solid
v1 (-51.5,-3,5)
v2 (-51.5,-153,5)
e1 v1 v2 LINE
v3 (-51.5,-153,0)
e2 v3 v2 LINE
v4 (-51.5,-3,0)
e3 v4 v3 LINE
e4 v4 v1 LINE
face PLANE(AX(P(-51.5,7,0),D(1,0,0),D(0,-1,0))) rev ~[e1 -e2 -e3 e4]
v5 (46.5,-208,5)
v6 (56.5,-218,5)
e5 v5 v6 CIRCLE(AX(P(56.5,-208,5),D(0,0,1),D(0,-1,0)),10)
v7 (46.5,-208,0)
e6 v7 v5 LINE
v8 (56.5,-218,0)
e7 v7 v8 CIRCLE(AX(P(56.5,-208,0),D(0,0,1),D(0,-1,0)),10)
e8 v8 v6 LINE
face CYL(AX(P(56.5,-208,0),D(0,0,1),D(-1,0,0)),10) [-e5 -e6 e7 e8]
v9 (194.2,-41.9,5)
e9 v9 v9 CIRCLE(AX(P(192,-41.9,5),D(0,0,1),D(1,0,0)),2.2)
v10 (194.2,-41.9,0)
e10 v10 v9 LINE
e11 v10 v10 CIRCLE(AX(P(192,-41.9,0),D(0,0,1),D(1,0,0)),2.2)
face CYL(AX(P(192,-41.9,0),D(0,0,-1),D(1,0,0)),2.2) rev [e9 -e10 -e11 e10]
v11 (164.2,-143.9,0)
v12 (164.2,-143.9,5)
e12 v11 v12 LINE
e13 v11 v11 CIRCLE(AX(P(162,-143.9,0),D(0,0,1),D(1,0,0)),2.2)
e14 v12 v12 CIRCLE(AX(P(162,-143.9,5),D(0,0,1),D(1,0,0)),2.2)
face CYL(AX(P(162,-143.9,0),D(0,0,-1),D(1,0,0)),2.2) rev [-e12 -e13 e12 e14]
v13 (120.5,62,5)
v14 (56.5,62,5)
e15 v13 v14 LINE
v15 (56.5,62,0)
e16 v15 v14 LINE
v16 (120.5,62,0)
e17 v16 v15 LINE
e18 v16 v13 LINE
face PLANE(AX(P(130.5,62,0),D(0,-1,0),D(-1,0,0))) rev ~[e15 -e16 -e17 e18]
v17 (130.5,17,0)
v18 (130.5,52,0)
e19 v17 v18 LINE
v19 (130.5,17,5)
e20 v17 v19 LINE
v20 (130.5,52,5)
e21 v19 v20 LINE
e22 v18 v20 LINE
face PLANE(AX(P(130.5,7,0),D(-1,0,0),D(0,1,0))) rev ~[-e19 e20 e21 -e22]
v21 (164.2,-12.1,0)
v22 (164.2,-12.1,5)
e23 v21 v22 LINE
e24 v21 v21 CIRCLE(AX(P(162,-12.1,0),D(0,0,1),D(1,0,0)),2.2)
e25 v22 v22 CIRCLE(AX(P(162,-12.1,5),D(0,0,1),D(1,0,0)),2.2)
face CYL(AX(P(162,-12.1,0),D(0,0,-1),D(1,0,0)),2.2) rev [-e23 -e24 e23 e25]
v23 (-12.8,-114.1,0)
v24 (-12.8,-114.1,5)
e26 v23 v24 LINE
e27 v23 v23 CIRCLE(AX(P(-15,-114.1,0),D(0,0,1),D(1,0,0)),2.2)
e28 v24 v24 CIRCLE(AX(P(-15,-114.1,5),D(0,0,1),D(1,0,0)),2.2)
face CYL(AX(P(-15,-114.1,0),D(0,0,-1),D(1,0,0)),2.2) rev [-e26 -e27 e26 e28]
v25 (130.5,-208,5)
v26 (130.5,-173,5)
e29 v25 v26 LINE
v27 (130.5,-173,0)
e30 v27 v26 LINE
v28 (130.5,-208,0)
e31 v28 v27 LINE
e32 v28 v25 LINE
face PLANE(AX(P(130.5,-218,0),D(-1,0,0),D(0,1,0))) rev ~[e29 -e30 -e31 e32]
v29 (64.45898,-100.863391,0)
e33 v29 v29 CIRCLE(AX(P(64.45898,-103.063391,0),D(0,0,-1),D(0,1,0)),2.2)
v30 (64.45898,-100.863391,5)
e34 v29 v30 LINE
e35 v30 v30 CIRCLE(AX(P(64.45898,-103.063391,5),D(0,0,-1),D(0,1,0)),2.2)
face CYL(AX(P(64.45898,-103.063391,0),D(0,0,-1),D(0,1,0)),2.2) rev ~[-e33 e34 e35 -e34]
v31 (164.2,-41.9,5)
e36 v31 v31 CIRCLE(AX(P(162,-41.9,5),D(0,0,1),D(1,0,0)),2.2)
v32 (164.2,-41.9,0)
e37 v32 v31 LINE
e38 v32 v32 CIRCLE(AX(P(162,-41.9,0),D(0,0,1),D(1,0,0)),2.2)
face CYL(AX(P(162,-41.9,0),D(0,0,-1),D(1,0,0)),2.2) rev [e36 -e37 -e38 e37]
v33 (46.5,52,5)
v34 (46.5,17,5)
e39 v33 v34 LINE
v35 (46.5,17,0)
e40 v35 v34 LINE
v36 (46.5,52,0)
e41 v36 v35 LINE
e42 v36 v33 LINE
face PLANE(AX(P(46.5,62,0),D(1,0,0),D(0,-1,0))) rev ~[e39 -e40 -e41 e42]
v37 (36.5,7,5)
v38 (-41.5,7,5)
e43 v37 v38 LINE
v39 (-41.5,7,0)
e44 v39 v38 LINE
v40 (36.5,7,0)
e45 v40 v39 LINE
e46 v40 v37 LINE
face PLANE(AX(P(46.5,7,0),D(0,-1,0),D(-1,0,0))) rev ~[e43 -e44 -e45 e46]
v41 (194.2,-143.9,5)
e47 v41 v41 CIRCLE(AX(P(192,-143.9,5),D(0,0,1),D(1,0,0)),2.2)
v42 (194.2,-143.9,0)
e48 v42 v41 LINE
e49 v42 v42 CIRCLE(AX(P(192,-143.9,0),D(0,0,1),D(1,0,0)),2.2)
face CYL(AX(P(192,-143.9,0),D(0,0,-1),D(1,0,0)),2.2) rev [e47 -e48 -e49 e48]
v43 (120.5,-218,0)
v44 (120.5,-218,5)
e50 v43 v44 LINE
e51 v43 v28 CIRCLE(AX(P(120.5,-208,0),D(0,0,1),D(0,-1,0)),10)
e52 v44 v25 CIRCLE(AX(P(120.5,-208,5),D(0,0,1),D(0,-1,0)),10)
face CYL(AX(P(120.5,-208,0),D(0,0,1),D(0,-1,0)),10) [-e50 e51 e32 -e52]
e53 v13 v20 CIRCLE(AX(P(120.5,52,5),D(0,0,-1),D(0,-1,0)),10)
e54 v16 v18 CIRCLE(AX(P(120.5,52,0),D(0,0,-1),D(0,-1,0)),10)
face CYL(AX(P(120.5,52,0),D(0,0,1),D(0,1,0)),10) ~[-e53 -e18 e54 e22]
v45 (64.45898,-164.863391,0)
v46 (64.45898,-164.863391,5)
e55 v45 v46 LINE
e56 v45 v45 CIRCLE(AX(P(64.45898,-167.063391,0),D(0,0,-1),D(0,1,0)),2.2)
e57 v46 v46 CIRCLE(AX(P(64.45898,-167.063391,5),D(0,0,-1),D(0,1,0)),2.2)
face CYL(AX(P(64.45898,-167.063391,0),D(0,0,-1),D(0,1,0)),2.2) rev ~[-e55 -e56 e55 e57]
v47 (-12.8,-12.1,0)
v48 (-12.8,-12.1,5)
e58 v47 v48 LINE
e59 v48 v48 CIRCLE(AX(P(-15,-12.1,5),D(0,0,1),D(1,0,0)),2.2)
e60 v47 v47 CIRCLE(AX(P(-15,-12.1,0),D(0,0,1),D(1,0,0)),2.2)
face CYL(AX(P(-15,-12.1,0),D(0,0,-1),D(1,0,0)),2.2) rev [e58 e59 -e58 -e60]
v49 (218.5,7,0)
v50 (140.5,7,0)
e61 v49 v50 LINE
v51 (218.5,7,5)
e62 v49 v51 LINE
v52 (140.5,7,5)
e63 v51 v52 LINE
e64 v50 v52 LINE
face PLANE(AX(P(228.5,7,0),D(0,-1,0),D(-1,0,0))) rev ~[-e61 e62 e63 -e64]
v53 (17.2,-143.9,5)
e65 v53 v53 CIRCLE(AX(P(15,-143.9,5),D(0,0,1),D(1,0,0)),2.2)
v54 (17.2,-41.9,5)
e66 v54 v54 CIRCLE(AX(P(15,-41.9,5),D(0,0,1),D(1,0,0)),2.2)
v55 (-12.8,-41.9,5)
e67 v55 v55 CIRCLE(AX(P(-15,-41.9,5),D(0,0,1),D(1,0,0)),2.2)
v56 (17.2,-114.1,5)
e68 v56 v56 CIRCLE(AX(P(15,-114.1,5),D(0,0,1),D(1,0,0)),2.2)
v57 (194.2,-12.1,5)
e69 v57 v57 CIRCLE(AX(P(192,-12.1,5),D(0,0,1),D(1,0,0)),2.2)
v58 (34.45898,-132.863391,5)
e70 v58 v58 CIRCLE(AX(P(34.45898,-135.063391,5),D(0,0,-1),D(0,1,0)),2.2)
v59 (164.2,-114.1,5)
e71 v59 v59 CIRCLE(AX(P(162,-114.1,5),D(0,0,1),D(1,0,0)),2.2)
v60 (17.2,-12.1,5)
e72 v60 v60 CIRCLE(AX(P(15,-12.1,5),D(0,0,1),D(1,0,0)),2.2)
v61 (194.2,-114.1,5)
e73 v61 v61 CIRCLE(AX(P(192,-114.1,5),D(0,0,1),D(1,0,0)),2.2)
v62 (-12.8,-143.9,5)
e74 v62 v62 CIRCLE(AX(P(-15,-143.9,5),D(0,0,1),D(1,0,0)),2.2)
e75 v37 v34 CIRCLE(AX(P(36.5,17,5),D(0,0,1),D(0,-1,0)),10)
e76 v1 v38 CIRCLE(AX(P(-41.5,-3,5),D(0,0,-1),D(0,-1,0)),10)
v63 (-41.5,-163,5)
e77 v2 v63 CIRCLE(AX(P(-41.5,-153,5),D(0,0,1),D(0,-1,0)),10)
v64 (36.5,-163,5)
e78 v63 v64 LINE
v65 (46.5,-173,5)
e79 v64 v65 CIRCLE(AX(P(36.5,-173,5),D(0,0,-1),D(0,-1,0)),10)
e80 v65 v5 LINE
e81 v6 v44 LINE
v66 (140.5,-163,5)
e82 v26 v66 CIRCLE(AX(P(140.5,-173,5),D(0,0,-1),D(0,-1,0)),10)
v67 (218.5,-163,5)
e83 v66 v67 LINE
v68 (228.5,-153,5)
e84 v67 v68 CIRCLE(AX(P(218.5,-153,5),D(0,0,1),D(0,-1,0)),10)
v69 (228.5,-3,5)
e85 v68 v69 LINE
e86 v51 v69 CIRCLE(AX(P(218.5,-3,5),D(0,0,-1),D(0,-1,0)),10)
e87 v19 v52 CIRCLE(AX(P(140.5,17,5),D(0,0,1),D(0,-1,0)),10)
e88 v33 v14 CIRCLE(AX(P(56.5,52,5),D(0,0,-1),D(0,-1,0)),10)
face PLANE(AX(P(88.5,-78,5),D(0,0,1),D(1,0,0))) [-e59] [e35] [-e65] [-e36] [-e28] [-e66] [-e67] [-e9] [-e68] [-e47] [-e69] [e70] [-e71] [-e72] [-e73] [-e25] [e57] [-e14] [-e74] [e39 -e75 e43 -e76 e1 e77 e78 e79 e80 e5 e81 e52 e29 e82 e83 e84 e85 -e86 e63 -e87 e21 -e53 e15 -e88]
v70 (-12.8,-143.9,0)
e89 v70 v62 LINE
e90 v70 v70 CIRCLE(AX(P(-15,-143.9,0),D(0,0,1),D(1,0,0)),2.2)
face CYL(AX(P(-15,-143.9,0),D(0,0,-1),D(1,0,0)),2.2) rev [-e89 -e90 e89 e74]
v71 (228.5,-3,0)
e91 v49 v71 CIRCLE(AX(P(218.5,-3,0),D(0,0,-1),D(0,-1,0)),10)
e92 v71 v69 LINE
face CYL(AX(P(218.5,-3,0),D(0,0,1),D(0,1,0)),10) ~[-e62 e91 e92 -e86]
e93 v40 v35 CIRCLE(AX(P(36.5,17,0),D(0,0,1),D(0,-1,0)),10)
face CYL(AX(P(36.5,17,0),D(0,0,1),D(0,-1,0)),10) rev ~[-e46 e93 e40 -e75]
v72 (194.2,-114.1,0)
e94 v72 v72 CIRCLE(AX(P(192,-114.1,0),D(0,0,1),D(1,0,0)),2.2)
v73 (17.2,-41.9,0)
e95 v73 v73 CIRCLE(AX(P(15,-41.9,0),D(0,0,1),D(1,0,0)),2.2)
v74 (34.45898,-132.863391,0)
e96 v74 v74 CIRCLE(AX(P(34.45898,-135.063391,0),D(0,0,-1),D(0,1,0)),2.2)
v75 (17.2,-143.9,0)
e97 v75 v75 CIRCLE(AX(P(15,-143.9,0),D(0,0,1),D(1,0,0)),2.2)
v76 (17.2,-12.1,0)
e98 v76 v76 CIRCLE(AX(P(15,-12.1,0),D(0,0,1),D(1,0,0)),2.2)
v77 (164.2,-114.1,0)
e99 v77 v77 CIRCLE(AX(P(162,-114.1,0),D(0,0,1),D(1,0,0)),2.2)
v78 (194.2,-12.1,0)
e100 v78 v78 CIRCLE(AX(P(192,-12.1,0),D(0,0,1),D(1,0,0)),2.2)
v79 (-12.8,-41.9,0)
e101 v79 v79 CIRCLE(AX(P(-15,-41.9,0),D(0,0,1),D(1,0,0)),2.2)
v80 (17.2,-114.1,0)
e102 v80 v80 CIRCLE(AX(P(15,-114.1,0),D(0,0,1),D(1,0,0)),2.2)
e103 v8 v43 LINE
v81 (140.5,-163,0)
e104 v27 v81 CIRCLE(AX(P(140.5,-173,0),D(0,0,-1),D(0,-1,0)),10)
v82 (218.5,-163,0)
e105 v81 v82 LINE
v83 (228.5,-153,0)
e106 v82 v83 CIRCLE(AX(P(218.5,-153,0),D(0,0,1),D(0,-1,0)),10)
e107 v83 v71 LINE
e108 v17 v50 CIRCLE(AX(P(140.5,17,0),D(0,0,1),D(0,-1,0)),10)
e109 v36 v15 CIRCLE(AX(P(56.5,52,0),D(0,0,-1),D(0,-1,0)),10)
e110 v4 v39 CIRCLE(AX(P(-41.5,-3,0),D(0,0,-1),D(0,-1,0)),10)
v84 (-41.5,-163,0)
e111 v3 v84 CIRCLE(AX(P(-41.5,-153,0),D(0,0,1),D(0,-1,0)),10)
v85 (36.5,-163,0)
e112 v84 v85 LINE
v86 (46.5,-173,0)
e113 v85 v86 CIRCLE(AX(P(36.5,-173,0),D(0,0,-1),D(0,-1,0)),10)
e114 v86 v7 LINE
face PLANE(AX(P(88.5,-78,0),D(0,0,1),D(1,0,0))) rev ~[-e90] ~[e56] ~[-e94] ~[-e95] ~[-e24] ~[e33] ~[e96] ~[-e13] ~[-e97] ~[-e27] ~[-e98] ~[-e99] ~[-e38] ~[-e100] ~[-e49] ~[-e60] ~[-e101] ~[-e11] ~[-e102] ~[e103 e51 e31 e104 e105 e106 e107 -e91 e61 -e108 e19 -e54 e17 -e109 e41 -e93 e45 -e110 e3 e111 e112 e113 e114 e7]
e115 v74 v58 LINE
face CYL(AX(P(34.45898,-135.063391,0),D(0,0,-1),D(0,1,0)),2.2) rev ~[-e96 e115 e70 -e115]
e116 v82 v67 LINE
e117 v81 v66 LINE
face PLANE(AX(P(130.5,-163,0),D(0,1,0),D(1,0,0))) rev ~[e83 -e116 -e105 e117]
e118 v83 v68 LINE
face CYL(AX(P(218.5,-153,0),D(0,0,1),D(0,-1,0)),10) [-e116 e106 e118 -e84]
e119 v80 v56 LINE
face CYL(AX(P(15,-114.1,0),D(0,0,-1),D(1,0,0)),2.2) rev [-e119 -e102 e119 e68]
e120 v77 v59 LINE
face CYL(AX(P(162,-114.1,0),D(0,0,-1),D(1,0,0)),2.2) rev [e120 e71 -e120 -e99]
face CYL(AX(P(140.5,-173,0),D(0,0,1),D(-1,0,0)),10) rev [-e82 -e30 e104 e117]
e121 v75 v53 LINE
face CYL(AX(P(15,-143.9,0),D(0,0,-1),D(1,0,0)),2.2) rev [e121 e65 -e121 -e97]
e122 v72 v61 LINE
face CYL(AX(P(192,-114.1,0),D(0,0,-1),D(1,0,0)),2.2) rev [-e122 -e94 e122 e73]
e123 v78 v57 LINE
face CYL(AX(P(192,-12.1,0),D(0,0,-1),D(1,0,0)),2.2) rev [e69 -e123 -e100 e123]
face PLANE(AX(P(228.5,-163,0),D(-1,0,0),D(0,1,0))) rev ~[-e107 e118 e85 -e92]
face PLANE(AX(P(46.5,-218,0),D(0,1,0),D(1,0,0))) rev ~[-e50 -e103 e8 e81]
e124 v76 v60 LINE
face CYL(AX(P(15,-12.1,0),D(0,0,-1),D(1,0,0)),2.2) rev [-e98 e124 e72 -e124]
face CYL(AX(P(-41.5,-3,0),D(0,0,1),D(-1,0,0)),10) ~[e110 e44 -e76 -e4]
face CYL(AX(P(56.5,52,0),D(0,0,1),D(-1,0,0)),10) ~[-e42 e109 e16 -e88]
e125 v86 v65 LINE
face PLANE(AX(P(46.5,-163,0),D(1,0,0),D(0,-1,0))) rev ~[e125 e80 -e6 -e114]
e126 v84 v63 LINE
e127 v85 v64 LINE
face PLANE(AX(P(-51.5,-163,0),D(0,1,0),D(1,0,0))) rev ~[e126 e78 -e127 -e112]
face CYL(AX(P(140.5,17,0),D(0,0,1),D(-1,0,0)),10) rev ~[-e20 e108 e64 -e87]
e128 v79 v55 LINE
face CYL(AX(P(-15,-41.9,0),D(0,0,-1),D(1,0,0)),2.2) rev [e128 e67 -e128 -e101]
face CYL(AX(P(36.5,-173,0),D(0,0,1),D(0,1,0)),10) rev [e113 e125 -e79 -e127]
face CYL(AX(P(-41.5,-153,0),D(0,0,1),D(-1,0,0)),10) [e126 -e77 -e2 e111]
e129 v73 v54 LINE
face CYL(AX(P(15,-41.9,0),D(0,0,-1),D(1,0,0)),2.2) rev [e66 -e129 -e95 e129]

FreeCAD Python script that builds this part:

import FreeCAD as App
import Part
import Sketcher

V = App.Vector


def edges_at(feature, points):
    """Names of the edges that pass closest to the given points."""
    edges = feature.Shape.Edges
    near = lambda p: min(range(len(edges)), key=lambda i: edges[i].distToShape(Part.Vertex(*p))[0])
    return sorted({f"Edge{near(p) + 1}" for p in points})


def add_polygon(sketch, points):
    """Adds a closed chain of lines whose ends are joined by coincident constraints."""
    first, n = sketch.GeometryCount, len(points)
    for a, b in zip(points, points[1:] + points[:1]):
        sketch.addGeometry(Part.LineSegment(App.Vector(*a, 0), App.Vector(*b, 0)), False)
    for i in range(n):
        sketch.addConstraint(Sketcher.Constraint("Coincident", first + i, 2, first + (i + 1) % n, 1))

doc = App.newDocument("Part")
body = doc.addObject("PartDesign::Body", "Body")

sketch1 = body.newObject("Sketcher::SketchObject", "Sketch")
sketch1.AttachmentSupport = (doc.getObject("XY_Plane"), [""])
sketch1.MapMode = "FlatFace"
add_polygon(sketch1, [(-51.5, 7), (-51.5, -163), (46.5, -163), (46.5, -218), (130.5, -218), (130.5, -163), (228.5, -163), (228.5, 7), (130.5, 7), (130.5, 62), (46.5, 62), (46.5, 7)])
sketch1.addGeometry(Part.Circle(V(-15, -143.9, 0), V(0, 0, 1), 2.2), False)
sketch1.addGeometry(Part.Circle(V(15, -143.9, 0), V(0, 0, 1), 2.2), False)
sketch1.addGeometry(Part.Circle(V(-15, -114.1, 0), V(0, 0, 1), 2.2), False)
sketch1.addGeometry(Part.Circle(V(15, -114.1, 0), V(0, 0, 1), 2.2), False)
sketch1.addGeometry(Part.Circle(V(162, -143.9, 0), V(0, 0, 1), 2.2), False)
sketch1.addGeometry(Part.Circle(V(192, -143.9, 0), V(0, 0, 1), 2.2), False)
sketch1.addGeometry(Part.Circle(V(162, -114.1, 0), V(0, 0, 1), 2.2), False)
sketch1.addGeometry(Part.Circle(V(192, -114.1, 0), V(0, 0, 1), 2.2), False)
sketch1.addGeometry(Part.Circle(V(-15, -41.9, 0), V(0, 0, 1), 2.2), False)
sketch1.addGeometry(Part.Circle(V(15, -41.9, 0), V(0, 0, 1), 2.2), False)
sketch1.addGeometry(Part.Circle(V(-15, -12.1, 0), V(0, 0, 1), 2.2), False)
sketch1.addGeometry(Part.Circle(V(15, -12.1, 0), V(0, 0, 1), 2.2), False)
sketch1.addGeometry(Part.Circle(V(162, -41.9, 0), V(0, 0, 1), 2.2), False)
sketch1.addGeometry(Part.Circle(V(192, -41.9, 0), V(0, 0, 1), 2.2), False)
sketch1.addGeometry(Part.Circle(V(162, -12.1, 0), V(0, 0, 1), 2.2), False)
sketch1.addGeometry(Part.Circle(V(192, -12.1, 0), V(0, 0, 1), 2.2), False)
sketch1.addConstraint([
    Sketcher.Constraint("Vertical", 0),
    Sketcher.Constraint("Horizontal", 1),
    Sketcher.Constraint("Vertical", 2),
    Sketcher.Constraint("Horizontal", 3),
    Sketcher.Constraint("Vertical", 4),
    Sketcher.Constraint("Horizontal", 5),
    Sketcher.Constraint("Vertical", 6),
    Sketcher.Constraint("Horizontal", 7),
    Sketcher.Constraint("Vertical", 8),
    Sketcher.Constraint("Horizontal", 9),
    Sketcher.Constraint("Vertical", 10),
    Sketcher.Constraint("Horizontal", 11),
    Sketcher.Constraint("Equal", 12, 13),
    Sketcher.Constraint("Equal", 13, 14),
    Sketcher.Constraint("Equal", 14, 15),
    Sketcher.Constraint("Equal", 15, 16),
    Sketcher.Constraint("Equal", 16, 17),
    Sketcher.Constraint("Equal", 17, 18),
    Sketcher.Constraint("Equal", 18, 19),
    Sketcher.Constraint("Equal", 19, 20),
    Sketcher.Constraint("Equal", 20, 21),
    Sketcher.Constraint("Equal", 21, 22),
    Sketcher.Constraint("Equal", 22, 23),
    Sketcher.Constraint("Equal", 23, 24),
    Sketcher.Constraint("Equal", 24, 25),
    Sketcher.Constraint("Equal", 25, 26),
    Sketcher.Constraint("Equal", 26, 27),
    Sketcher.Constraint("Symmetric", 12, 3, 13, 3, -2),
    Sketcher.Constraint("Symmetric", 14, 3, 15, 3, -2),
    Sketcher.Constraint("Symmetric", 20, 3, 21, 3, -2),
    Sketcher.Constraint("Symmetric", 22, 3, 23, 3, -2),
    Sketcher.Constraint("Horizontal", 13, 3, 16, 3),
    Sketcher.Constraint("Horizontal", 16, 3, 17, 3),
    Sketcher.Constraint("Horizontal", 15, 3, 18, 3),
    Sketcher.Constraint("Horizontal", 18, 3, 19, 3),
    Sketcher.Constraint("Horizontal", 21, 3, 24, 3),
    Sketcher.Constraint("Horizontal", 24, 3, 25, 3),
    Sketcher.Constraint("Horizontal", 23, 3, 26, 3),
    Sketcher.Constraint("Horizontal", 26, 3, 27, 3),
    Sketcher.Constraint("Horizontal", 1, 2, 4, 2),
    Sketcher.Constraint("Horizontal", 7, 2, 10, 2),
    Sketcher.Constraint("Vertical", 12, 3, 14, 3),
    Sketcher.Constraint("Vertical", 16, 3, 18, 3),
    Sketcher.Constraint("Vertical", 17, 3, 19, 3),
    Sketcher.Constraint("Vertical", 14, 3, 20, 3),
    Sketcher.Constraint("Vertical", 20, 3, 22, 3),
    Sketcher.Constraint("Vertical", 18, 3, 24, 3),
    Sketcher.Constraint("Vertical", 19, 3, 25, 3),
    Sketcher.Constraint("Vertical", 24, 3, 26, 3),
    Sketcher.Constraint("Vertical", 25, 3, 27, 3),
    Sketcher.Constraint("Vertical", 4, 2, 7, 2),
    Sketcher.Constraint("Vertical", 2, 2, 9, 2),
    Sketcher.Constraint("Equal", 1, 5),
    Sketcher.Constraint("Equal", 4, 8),
    Sketcher.Constraint("Diameter", 12, 4.4),
    Sketcher.Constraint("DistanceX", 1, 1, 1, 2, 98.0),
    Sketcher.Constraint("DistanceX", 3, 1, 3, 2, 84.0),
    Sketcher.Constraint("DistanceY", 0, 2, 0, 1, 170.0),
    Sketcher.Constraint("DistanceY", 2, 2, 2, 1, 55.0),
    Sketcher.Constraint("DistanceX", 12, 3, -1, 1, 15.0),
    Sketcher.Constraint("DistanceX", -1, 1, 16, 3, 162.0),
    Sketcher.Constraint("DistanceX", -1, 1, 17, 3, 192.0),
    Sketcher.Constraint("DistanceY", 0, 2, -1, 1, 163.0),
    Sketcher.Constraint("DistanceY", 12, 3, 20, 3, 102.0),
    Sketcher.Constraint("DistanceY", 14, 3, 22, 3, 102.0),
    Sketcher.Constraint("DistanceY", 12, 3, -1, 1, 143.9),
    Sketcher.Constraint("DistanceY", 14, 3, -1, 1, 114.1),
    Sketcher.Constraint("DistanceX", 0, 2, -1, 1, 51.5),
])
pad1 = body.newObject("PartDesign::Pad", "Pad")
pad1.Profile = sketch1
pad1.Length = 5
doc.recompute()

fillet = body.newObject("PartDesign::Fillet", "Fillet")
fillet.Base = (pad1, edges_at(pad1, [
    (130.5, 7, 2.5),
    (228.5, 7, 2.5),
    (228.5, -163, 2.5),
    (130.5, -163, 2.5),
    (130.5, -218, 2.5),
    (46.5, -218, 2.5),
    (46.5, -163, 2.5),
    (-51.5, -163, 2.5),
    (-51.5, 7, 2.5),
    (46.5, 7, 2.5),
    (46.5, 62, 2.5),
    (130.5, 62, 2.5),
]))
fillet.Radius = 10

sketch2 = body.newObject("Sketcher::SketchObject", "Sketch001")
sketch2.AttachmentSupport = (doc.getObject("XY_Plane"), [""])
sketch2.MapMode = "FlatFace"
sketch2.addGeometry(Part.Circle(V(64.45898, -103.063391, 0), V(0, 0, 1), 2.2), False)
sketch2.addConstraint([
    Sketcher.Constraint("Diameter", 0, 4.4),
    Sketcher.Constraint("DistanceX", -1, 1, 0, 3, 64.45898),
    Sketcher.Constraint("DistanceY", 0, 3, -1, 1, 103.063391),
])
pocket1 = body.newObject("PartDesign::Pocket", "Pocket")
pocket1.Profile = sketch2
pocket1.Type = "UpToFirst"
pocket1.Reversed = True

sketch3 = body.newObject("Sketcher::SketchObject", "Sketch002")
sketch3.AttachmentSupport = (doc.getObject("XY_Plane"), [""])
sketch3.MapMode = "FlatFace"
sketch3.addGeometry(Part.Circle(V(34.45898, -135.063391, 0), V(0, 0, 1), 2.2), False)
sketch3.addConstraint([
    Sketcher.Constraint("Diameter", 0, 4.4),
    Sketcher.Constraint("DistanceX", -1, 1, 0, 3, 34.45898),
    Sketcher.Constraint("DistanceY", 0, 3, -1, 1, 135.063391),
])
pocket2 = body.newObject("PartDesign::Pocket", "Pocket001")
pocket2.Profile = sketch3
pocket2.Type = "UpToFirst"
pocket2.Reversed = True

sketch4 = body.newObject("Sketcher::SketchObject", "Sketch003")
sketch4.AttachmentSupport = (doc.getObject("XY_Plane"), [""])
sketch4.MapMode = "FlatFace"
sketch4.addGeometry(Part.Circle(V(64.45898, -167.063391, 0), V(0, 0, 1), 2.2), False)
sketch4.addConstraint([
    Sketcher.Constraint("Diameter", 0, 4.4),
    Sketcher.Constraint("DistanceX", -1, 1, 0, 3, 64.45898),
    Sketcher.Constraint("DistanceY", 0, 3, -1, 1, 167.063391),
])
pocket3 = body.newObject("PartDesign::Pocket", "Pocket002")
pocket3.Profile = sketch4
pocket3.Type = "UpToFirst"
pocket3.Reversed = True

doc.recompute()
